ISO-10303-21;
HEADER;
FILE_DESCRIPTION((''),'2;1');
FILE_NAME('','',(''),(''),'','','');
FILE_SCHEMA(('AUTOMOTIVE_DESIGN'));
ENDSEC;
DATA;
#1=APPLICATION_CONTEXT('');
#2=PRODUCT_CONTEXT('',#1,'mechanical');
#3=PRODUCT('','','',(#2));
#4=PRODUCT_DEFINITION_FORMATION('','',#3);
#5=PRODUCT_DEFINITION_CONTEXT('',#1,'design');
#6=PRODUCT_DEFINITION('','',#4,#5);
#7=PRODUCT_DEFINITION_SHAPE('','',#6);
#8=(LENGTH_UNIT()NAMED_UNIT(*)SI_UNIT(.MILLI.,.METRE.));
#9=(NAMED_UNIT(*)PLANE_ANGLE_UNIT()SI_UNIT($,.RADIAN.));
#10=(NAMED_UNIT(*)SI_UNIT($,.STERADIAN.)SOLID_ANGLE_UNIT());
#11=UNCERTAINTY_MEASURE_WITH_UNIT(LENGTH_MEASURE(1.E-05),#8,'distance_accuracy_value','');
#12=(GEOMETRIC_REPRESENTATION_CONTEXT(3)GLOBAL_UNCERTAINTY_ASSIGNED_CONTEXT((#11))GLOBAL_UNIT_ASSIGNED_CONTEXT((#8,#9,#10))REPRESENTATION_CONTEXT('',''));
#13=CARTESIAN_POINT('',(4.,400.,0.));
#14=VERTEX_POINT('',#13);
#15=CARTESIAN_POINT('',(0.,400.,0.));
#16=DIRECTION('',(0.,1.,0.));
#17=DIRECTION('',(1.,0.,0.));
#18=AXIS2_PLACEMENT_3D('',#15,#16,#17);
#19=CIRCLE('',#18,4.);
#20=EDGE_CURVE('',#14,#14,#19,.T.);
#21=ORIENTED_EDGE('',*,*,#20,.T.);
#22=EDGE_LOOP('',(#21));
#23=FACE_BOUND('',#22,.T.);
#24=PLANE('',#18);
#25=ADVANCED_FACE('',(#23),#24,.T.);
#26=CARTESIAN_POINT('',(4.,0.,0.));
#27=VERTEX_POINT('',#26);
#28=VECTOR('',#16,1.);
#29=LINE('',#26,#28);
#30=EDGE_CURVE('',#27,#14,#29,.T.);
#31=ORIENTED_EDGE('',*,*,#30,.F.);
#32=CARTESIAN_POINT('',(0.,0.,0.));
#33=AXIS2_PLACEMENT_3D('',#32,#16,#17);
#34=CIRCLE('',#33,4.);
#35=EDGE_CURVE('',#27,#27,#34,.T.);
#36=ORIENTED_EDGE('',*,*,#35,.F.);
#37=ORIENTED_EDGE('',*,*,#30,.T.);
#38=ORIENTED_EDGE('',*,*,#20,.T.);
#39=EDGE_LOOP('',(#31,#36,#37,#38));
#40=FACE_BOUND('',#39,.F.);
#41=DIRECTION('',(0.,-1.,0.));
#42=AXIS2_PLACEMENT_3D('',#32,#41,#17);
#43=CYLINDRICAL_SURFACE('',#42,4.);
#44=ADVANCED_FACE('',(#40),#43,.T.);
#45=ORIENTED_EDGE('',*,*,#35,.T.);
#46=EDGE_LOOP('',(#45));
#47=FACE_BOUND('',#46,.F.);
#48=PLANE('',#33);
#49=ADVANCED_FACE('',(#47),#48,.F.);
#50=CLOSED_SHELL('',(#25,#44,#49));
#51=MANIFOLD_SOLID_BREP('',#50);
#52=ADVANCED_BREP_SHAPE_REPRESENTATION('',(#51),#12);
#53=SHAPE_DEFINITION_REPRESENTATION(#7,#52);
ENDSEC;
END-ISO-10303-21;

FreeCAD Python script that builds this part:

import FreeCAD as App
import Part
import Sketcher

doc = App.newDocument("Part")
params = doc.addObject("Spreadsheet::Sheet", "Params")
for row, (alias, value) in enumerate([
    ("sketch1_diameter", "8 mm"),
    ("pad1_length", "400 mm"),
], start=1):
    params.set(f"A{row}", alias)
    params.set(f"B{row}", "=" + value)
    params.setAlias(f"B{row}", alias)

body = doc.addObject("PartDesign::Body", "Body")

# Sketch on XZ plane
sketch1 = doc.addObject("Sketcher::SketchObject", "Sketch")
body.addObject(sketch1)
sketch1.AttachmentSupport = (doc.XZ_Plane, [""])
sketch1.MapMode = "FlatFace"
sketch1.addGeometry(Part.Circle(App.Vector(0, 0, 0), App.Vector(0, 0, 1), 4), False)
sketch1.addConstraint([
    Sketcher.Constraint("Coincident", 0, 3, -1, 1),
    Sketcher.Constraint("Diameter", 0, 8.0),
])
sketch1.setExpression("Constraints[1]", "Params.sketch1_diameter")
pad1 = doc.addObject("PartDesign::Pad", "Pad")
body.addObject(pad1)
pad1.Profile = sketch1
pad1.setExpression("Length", "Params.pad1_length")
pad1.Reversed = True

doc.recompute()
